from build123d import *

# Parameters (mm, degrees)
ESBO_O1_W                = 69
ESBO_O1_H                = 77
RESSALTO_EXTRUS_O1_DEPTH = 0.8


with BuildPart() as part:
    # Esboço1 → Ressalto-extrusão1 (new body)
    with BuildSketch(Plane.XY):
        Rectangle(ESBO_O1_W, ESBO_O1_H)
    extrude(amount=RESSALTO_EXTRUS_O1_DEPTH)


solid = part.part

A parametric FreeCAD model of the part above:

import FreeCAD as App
import Part
import Sketcher

doc = App.newDocument("Part")
body = doc.addObject("PartDesign::Body", "Body")

sketch1 = body.newObject("Sketcher::SketchObject", "Sketch")
sketch1.AttachmentSupport = (doc.getObject("XY_Plane"), [""])
sketch1.MapMode = "FlatFace"
sketch1.addGeometry([
    Part.LineSegment(App.Vector(-34, 38, 0), App.Vector(-34, -38, 0)),
    Part.LineSegment(App.Vector(-34, -38, 0), App.Vector(34, -38, 0)),
    Part.LineSegment(App.Vector(34, -38, 0), App.Vector(34, 38, 0)),
    Part.LineSegment(App.Vector(34, 38, 0), App.Vector(-34, 38, 0)),
], False)
sketch1.addConstraint([
    Sketcher.Constraint("Coincident", 0, 2, 1, 1),
    Sketcher.Constraint("Coincident", 1, 2, 2, 1),
    Sketcher.Constraint("Coincident", 2, 2, 3, 1),
    Sketcher.Constraint("Coincident", 3, 2, 0, 1),
    Sketcher.Constraint("Vertical", 0),
    Sketcher.Constraint("Horizontal", 1),
    Sketcher.Constraint("Vertical", 2),
    Sketcher.Constraint("Horizontal", 3),
    Sketcher.Constraint("Symmetric", 0, 2, 2, 2, -1, 1),
    Sketcher.Constraint("DistanceX", 1, 1, 1, 2, 69.0),
    Sketcher.Constraint("DistanceY", 0, 2, 0, 1, 77.0),
])
pad1 = body.newObject("PartDesign::Pad", "Pad")
pad1.Profile = sketch1
pad1.Length = 0.8

doc.recompute()
